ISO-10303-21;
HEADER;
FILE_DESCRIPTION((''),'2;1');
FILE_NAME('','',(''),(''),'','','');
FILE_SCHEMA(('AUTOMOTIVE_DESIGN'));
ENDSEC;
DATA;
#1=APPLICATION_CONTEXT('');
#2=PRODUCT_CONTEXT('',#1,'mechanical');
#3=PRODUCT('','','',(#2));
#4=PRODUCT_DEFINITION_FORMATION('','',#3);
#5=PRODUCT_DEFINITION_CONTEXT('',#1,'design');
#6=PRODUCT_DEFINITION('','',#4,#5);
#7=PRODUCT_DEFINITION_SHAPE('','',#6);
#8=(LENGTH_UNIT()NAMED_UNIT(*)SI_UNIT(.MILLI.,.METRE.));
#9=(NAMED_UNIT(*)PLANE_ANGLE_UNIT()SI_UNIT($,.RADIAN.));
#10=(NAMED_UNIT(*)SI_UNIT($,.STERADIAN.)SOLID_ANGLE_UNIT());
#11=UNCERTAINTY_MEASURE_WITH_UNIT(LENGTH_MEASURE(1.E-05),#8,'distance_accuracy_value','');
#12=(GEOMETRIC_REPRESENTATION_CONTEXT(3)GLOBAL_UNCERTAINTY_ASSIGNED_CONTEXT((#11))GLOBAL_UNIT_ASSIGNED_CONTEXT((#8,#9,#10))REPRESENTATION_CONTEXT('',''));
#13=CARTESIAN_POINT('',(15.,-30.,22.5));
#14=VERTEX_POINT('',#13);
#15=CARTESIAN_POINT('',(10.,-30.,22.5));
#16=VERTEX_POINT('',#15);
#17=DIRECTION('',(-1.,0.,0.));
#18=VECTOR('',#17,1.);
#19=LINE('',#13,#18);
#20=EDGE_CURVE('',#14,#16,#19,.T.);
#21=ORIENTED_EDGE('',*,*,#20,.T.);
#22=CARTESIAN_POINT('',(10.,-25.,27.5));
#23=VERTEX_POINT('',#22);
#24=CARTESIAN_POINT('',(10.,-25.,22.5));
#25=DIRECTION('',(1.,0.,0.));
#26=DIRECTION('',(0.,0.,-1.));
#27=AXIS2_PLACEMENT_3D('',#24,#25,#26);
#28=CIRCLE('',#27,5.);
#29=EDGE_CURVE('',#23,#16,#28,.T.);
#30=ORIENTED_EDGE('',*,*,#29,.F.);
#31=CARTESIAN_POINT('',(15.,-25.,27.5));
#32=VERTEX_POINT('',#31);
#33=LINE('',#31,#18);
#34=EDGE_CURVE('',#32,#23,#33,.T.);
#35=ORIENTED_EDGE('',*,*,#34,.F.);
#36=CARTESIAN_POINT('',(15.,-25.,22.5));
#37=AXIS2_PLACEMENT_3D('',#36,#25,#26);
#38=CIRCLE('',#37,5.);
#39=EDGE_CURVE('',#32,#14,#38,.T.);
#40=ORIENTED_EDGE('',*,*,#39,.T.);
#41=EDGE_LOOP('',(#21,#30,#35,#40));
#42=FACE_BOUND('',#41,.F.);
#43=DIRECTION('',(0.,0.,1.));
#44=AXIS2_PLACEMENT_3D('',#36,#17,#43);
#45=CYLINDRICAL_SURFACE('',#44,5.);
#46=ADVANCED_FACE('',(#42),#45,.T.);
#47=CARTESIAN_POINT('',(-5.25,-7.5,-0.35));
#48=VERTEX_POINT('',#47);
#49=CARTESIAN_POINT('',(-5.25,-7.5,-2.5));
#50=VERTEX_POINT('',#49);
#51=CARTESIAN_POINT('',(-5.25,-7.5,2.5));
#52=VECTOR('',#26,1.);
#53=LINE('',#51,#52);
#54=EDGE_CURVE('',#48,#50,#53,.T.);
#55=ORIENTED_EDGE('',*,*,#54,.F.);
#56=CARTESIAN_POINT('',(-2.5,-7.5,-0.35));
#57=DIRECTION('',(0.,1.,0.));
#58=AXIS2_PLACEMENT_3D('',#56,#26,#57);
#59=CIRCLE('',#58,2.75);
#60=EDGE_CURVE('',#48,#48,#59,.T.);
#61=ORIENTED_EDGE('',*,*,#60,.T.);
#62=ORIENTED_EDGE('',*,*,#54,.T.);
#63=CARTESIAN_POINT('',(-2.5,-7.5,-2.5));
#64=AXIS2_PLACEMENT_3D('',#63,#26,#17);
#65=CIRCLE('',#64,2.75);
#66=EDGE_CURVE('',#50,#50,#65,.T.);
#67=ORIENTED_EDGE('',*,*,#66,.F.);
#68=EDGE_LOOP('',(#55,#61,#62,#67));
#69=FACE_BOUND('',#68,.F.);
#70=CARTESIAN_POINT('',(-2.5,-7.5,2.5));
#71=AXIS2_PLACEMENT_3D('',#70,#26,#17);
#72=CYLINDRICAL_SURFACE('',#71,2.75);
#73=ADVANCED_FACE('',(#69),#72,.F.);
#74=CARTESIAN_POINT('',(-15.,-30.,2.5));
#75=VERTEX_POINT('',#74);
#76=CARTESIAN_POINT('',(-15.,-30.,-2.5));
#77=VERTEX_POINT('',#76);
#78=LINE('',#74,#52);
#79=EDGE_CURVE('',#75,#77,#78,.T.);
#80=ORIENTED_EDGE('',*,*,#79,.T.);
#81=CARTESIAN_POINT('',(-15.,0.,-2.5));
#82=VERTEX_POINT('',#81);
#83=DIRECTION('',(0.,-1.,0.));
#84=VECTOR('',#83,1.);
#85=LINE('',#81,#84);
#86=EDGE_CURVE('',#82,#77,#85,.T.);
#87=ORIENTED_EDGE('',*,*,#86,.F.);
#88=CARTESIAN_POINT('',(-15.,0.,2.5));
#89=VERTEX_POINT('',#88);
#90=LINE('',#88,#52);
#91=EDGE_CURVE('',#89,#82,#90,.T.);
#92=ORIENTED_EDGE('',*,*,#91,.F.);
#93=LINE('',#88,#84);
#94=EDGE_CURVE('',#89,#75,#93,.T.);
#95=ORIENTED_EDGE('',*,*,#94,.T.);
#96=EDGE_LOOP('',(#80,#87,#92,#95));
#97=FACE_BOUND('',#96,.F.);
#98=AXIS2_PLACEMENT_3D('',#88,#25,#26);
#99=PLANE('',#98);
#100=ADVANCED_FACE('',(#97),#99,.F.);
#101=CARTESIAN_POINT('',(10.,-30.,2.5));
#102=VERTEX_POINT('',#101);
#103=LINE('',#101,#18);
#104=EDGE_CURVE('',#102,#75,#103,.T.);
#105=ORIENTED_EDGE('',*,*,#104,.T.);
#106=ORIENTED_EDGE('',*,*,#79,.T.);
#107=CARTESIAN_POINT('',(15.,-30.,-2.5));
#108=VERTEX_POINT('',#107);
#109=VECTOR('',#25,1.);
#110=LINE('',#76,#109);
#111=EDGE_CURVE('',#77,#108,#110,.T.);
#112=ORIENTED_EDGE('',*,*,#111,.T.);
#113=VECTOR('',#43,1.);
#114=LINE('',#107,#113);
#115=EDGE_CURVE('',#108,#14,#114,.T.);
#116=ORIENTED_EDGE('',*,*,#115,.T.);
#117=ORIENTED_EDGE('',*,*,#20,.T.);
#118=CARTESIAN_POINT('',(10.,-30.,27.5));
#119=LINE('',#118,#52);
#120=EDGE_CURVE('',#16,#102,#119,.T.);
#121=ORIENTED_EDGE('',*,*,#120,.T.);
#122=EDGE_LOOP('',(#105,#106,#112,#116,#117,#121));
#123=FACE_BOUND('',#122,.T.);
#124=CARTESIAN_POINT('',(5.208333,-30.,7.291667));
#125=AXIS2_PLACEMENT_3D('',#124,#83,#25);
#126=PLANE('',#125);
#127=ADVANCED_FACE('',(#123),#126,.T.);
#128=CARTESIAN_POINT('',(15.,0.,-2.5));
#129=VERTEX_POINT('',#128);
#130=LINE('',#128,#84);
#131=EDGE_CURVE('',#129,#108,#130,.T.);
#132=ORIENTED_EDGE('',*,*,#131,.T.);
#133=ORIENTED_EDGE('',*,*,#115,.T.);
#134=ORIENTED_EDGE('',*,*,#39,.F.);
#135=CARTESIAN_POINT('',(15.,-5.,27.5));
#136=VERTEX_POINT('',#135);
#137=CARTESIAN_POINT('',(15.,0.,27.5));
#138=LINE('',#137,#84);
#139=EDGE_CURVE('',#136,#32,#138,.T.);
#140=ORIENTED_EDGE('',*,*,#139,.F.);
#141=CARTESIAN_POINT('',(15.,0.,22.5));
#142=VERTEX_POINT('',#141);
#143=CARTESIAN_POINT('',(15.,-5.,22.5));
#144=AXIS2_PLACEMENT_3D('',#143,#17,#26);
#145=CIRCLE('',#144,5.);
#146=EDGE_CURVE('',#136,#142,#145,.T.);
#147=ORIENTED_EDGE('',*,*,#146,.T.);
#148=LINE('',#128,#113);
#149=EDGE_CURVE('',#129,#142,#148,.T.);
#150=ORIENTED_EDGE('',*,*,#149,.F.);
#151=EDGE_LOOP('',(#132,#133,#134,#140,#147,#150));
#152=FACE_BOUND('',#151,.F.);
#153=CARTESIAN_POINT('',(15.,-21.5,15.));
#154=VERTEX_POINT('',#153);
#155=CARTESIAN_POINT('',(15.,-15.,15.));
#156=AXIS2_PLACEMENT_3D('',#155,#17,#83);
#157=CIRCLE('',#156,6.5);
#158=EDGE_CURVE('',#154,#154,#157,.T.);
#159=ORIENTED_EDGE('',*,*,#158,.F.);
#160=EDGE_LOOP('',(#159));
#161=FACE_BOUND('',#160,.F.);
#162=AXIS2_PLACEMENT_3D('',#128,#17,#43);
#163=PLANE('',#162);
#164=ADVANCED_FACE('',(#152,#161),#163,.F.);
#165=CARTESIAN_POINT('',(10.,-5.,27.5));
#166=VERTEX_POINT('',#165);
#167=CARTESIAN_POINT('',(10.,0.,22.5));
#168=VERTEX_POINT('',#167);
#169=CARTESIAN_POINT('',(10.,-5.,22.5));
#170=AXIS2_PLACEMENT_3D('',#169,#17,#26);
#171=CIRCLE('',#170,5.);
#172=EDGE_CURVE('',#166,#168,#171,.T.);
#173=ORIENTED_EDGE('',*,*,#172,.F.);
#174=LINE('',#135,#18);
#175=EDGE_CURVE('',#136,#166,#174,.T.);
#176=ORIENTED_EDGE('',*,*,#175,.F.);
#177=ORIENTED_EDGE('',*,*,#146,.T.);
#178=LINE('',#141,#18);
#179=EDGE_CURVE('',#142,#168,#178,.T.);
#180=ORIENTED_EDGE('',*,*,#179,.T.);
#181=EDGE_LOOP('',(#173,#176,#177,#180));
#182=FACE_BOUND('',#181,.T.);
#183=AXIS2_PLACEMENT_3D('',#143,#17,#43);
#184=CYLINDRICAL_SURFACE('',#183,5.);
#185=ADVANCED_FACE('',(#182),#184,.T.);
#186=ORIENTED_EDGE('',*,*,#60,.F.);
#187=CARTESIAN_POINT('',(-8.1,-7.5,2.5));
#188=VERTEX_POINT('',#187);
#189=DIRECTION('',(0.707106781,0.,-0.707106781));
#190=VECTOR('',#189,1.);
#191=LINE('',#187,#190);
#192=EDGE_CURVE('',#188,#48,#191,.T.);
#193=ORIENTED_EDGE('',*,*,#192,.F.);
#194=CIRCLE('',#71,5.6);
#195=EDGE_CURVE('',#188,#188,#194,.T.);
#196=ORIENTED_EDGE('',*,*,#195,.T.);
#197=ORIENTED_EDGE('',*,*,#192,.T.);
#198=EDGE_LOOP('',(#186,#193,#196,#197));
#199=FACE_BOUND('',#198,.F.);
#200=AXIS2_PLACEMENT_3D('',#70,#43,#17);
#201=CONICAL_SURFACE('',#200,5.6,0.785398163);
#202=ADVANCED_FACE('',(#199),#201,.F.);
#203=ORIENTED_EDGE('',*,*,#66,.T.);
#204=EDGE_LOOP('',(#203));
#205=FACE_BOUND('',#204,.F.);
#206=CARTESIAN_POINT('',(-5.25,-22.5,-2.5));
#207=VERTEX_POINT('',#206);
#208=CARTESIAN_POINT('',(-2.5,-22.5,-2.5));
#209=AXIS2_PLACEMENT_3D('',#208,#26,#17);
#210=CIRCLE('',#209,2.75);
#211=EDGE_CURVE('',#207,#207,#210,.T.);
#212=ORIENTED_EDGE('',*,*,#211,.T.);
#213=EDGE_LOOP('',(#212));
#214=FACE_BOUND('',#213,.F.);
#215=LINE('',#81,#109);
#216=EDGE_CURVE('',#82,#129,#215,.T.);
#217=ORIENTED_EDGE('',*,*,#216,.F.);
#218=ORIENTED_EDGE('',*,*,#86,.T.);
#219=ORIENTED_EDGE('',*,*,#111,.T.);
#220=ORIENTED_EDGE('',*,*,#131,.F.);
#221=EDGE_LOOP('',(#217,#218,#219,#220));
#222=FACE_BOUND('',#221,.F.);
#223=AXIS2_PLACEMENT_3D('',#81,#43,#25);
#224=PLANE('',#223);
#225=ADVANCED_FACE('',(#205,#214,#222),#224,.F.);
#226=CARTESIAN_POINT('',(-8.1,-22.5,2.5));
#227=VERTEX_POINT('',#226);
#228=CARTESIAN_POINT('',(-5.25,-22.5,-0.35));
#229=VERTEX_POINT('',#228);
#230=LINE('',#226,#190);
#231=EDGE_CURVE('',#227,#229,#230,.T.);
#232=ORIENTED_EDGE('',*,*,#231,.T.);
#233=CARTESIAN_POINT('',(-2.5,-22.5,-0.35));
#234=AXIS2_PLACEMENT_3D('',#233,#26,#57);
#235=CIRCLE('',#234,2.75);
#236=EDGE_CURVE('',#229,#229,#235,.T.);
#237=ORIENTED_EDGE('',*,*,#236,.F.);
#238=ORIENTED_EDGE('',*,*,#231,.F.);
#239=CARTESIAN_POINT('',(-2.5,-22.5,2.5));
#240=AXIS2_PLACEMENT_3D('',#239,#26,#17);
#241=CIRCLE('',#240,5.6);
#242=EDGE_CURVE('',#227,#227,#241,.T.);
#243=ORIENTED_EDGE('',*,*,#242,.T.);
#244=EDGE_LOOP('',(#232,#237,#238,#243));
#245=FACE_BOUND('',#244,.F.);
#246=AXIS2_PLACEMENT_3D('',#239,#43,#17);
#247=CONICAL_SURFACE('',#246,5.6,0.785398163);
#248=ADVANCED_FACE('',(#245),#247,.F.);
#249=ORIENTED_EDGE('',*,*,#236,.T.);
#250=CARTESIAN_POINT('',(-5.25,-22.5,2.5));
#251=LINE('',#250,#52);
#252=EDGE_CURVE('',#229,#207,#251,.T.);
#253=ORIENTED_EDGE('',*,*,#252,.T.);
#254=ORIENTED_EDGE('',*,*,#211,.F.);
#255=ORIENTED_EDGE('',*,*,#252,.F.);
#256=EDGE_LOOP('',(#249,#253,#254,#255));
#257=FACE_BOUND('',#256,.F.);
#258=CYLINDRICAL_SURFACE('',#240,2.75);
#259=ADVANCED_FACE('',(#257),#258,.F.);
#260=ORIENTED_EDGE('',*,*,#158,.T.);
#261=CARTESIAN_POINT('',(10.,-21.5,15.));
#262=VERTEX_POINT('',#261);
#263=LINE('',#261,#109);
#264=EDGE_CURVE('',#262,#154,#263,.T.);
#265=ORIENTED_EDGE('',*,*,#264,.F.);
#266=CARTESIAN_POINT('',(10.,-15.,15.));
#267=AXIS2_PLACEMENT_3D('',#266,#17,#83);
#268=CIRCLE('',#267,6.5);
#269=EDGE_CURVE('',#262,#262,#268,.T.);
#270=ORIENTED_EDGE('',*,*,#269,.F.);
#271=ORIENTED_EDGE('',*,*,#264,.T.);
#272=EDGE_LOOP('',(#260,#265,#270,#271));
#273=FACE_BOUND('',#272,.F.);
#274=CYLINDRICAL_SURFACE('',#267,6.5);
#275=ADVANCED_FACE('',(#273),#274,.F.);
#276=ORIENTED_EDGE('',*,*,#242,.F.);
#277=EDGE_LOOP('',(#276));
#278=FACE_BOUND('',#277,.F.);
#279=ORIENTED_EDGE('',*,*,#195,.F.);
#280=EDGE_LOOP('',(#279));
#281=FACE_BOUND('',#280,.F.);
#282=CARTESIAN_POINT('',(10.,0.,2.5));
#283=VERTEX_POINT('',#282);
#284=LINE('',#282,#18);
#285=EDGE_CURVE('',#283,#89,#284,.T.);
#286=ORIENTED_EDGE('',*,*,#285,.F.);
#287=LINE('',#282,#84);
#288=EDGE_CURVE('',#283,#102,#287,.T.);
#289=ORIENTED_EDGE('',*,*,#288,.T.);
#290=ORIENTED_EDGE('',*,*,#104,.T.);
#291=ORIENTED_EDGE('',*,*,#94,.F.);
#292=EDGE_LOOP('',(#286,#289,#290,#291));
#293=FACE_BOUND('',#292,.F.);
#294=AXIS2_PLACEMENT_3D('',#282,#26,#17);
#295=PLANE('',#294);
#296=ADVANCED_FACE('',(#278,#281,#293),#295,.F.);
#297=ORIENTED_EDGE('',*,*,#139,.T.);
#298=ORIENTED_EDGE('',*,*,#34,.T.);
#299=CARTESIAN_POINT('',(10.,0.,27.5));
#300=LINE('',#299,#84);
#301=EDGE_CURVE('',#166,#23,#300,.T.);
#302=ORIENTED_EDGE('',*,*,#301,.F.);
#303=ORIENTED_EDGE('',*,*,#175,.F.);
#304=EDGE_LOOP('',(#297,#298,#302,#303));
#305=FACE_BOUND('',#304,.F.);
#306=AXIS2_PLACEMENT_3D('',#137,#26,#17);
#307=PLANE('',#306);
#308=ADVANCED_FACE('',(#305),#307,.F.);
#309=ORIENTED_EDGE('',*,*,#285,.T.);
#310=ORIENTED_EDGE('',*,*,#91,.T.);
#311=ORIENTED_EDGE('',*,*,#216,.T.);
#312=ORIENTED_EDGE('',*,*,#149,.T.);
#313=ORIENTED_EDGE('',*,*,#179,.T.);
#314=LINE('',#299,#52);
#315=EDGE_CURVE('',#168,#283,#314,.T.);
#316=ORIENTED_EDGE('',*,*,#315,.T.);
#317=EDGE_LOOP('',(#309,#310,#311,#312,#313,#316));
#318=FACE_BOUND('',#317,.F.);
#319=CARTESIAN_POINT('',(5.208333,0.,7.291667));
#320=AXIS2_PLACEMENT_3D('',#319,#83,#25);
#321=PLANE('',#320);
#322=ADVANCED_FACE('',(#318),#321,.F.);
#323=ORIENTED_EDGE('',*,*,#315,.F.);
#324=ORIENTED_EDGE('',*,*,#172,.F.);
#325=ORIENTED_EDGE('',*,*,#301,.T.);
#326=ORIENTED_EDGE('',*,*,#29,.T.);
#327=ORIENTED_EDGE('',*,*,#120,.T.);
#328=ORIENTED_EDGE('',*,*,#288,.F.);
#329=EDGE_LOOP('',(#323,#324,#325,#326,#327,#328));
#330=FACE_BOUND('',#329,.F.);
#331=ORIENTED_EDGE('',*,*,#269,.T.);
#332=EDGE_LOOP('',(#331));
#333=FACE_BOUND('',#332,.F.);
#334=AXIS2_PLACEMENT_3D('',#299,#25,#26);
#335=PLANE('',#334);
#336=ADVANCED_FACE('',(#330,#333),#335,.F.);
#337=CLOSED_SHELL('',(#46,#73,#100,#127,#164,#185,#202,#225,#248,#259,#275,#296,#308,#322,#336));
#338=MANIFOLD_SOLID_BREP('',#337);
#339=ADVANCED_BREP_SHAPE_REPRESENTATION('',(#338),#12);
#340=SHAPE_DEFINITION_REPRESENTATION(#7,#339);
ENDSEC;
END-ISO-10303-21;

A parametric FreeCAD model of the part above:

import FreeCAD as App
import Part
import Sketcher
from FreeCAD import Vector


def edges_at(feature, points):
    """Names of the edges that pass closest to the given points."""
    edges = feature.Shape.Edges
    near = lambda p: min(range(len(edges)), key=lambda i: edges[i].distToShape(Part.Vertex(*p))[0])
    return sorted({f"Edge{near(p) + 1}" for p in points})

doc = App.newDocument("Part")
body = doc.addObject("PartDesign::Body", "Body")

# Sketch on XZ plane
sketch1 = body.newObject("Sketcher::SketchObject", "Sketch")
sketch1.AttachmentSupport = (doc.getObject("XZ_Plane"), [""])
sketch1.MapMode = "FlatFace"
sketch1.addGeometry([
    Part.LineSegment(Vector(-15, -2, 0), Vector(15, -2, 0)),  # 0
    Part.LineSegment(Vector(15, -2, 0), Vector(15, 28, 0)),  # 1
    Part.LineSegment(Vector(15, 28, 0), Vector(10, 28, 0)),  # 2
    Part.LineSegment(Vector(10, 28, 0), Vector(10, 2, 0)),  # 3
    Part.LineSegment(Vector(10, 2, 0), Vector(-15, 2, 0)),  # 4
    Part.LineSegment(Vector(-15, 2, 0), Vector(-15, -2, 0)),  # 5
], False)
sketch1.addConstraint([
    Sketcher.Constraint("Coincident", 0, 2, 1, 1),
    Sketcher.Constraint("Coincident", 1, 2, 2, 1),
    Sketcher.Constraint("Coincident", 2, 2, 3, 1),
    Sketcher.Constraint("Coincident", 3, 2, 4, 1),
    Sketcher.Constraint("Coincident", 4, 2, 5, 1),
    Sketcher.Constraint("Coincident", 5, 2, 0, 1),
    Sketcher.Constraint("Horizontal", 0),
    Sketcher.Constraint("Vertical", 1),
    Sketcher.Constraint("Horizontal", 2),
    Sketcher.Constraint("Vertical", 3),
    Sketcher.Constraint("Horizontal", 4),
    Sketcher.Constraint("Vertical", 5),
    Sketcher.Constraint("Symmetric", 0, 2, 4, 2, -1, 1),
    Sketcher.Constraint("Equal", 0, 1),
    Sketcher.Constraint("Equal", 4, 3),
    Sketcher.Constraint("DistanceX", 0, 1, 0, 2, 30.0),
    Sketcher.Constraint("DistanceX", 2, 2, 2, 1, 5.0),
])
pad1 = body.newObject("PartDesign::Pad", "Pad")
pad1.Profile = sketch1
pad1.Length = 30
doc.recompute()

fillet = body.newObject("PartDesign::Fillet", "Fillet")
fillet.Base = (pad1, edges_at(pad1, [(12.5, 0, 27.5), (12.5, -30, 27.5)]))
fillet.Radius = 5

# Sketch on YZ plane
sketch2 = body.newObject("Sketcher::SketchObject", "Sketch001")
sketch2.AttachmentSupport = (doc.getObject("YZ_Plane"), [""])
sketch2.MapMode = "FlatFace"
sketch2.AttachmentOffset = App.Placement(Vector(0, 0, 10), App.Rotation())
sketch2.addGeometry(Part.Circle(Vector(-15, 15, 0), Vector(0, 0, 1), 6), False)
sketch2.addConstraint([
    Sketcher.Constraint("Diameter", 0, 13.0),
    Sketcher.Constraint("DistanceX", 0, 3, -1, 1, 15.0),
    Sketcher.Constraint("DistanceY", -1, 1, 0, 3, 15.0),
])
pocket1 = body.newObject("PartDesign::Pocket", "Pocket")
pocket1.Profile = sketch2
pocket1.Type = "ThroughAll"
pocket1.Reversed = True

# Sketch on XY plane
sketch3 = body.newObject("Sketcher::SketchObject", "Sketch002")
sketch3.AttachmentSupport = (doc.getObject("XY_Plane"), [""])
sketch3.MapMode = "FlatFace"
sketch3.AttachmentOffset = App.Placement(Vector(0, 0, 2.5), App.Rotation())
sketch3.addGeometry([
    Part.Circle(Vector(-2.5, -22.5, 0), Vector(0, 0, 1), 2.8),
    Part.Circle(Vector(-2.5, -7.5, 0), Vector(0, 0, 1), 2.8),
], False)
sketch3.addConstraint([
    Sketcher.Constraint("Equal", 0, 1),
    Sketcher.Constraint("Vertical", 0, 3, 1, 3),
    Sketcher.Constraint("Diameter", 0, 5.5),
    Sketcher.Constraint("DistanceY", 0, 3, 1, 3, 15.0),
    Sketcher.Constraint("DistanceX", 0, 3, -1, 1, 2.5),
    Sketcher.Constraint("DistanceY", 0, 3, -1, 1, 22.5),
])
doc.recompute()
hole = body.newObject("PartDesign::Hole", "Hole")
hole.Profile = sketch3
hole.ThreadType = "None"
hole.Diameter = 5.5
hole.DepthType = "Dimension"
hole.Depth = 18
hole.DrillPoint = "Angled"
hole.DrillPointAngle = 118
hole.HoleCutType = "Countersink"
hole.HoleCutDiameter = 11.2
hole.HoleCutCountersinkAngle = 90

doc.recompute()
